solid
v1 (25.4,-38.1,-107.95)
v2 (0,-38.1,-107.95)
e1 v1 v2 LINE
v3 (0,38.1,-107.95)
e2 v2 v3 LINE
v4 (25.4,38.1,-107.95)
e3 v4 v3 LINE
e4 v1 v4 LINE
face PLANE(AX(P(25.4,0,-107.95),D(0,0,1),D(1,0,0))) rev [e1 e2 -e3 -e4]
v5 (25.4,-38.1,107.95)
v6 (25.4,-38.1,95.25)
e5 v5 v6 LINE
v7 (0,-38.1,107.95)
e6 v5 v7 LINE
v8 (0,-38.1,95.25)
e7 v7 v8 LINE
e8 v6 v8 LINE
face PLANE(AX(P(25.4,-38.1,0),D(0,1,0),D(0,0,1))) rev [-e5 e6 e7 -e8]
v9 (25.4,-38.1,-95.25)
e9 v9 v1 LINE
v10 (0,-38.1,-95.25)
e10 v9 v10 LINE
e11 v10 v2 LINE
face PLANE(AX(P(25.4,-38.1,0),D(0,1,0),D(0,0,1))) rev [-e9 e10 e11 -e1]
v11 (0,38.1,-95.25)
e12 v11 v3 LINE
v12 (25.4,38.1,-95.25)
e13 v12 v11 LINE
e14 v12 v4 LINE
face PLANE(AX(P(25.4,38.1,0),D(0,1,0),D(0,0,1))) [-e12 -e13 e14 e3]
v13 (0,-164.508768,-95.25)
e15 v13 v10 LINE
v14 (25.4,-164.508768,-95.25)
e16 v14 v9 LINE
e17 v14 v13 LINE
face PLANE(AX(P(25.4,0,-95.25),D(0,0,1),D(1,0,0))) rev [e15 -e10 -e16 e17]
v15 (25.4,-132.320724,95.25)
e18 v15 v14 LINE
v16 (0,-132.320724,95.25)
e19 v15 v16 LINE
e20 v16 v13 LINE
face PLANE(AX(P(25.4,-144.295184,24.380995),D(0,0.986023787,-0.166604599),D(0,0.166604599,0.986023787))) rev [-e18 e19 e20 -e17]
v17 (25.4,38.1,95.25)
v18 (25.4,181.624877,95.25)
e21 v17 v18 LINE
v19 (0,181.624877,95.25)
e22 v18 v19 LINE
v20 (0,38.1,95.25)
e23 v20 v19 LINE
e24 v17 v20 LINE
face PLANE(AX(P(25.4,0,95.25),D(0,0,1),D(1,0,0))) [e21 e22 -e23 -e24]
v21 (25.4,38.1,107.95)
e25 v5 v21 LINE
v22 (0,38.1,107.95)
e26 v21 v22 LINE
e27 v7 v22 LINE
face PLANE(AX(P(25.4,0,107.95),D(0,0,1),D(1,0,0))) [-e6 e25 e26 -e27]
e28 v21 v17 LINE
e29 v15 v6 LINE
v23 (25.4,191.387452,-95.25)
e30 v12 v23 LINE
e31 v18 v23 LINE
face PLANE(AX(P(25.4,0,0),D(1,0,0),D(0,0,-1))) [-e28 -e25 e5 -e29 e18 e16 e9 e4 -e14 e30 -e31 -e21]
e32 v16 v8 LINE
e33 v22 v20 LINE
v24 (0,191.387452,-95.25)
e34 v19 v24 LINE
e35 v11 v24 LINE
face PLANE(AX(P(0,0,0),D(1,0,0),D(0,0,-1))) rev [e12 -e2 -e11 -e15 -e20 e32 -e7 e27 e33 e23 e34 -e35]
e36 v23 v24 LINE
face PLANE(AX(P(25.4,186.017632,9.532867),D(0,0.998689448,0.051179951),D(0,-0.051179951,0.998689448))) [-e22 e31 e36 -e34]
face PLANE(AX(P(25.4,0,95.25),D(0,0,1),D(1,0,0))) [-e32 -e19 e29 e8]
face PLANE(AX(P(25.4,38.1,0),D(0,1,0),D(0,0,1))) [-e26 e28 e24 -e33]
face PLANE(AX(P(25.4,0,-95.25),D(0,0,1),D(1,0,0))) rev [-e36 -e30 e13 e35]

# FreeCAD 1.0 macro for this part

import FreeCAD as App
import Part
import Sketcher

V = App.Vector
Q = App.Units.Quantity


def add_polygon(sketch, points):
    """Adds a closed chain of lines whose ends are joined by coincident constraints."""
    first, n = sketch.GeometryCount, len(points)
    for a, b in zip(points, points[1:] + points[:1]):
        sketch.addGeometry(Part.LineSegment(App.Vector(*a, 0), App.Vector(*b, 0)), False)
    for i in range(n):
        sketch.addConstraint(Sketcher.Constraint("Coincident", first + i, 2, first + (i + 1) % n, 1))

doc = App.newDocument("Part")
body = doc.addObject("PartDesign::Body", "Body")

# Sketch on YZ plane
sketch1 = body.newObject("Sketcher::SketchObject", "Sketch")
sketch1.AttachmentSupport = (doc.getObject("YZ_Plane"), [""])
sketch1.MapMode = "FlatFace"
add_polygon(sketch1, [(191, -95), (182, 95), (38, 95), (38, 108), (-38, 108), (-38, 95), (-132, 95), (-165, -95), (-38, -95), (-38, -108), (38, -108), (38, -95)])  # lines 0-11
sketch1.addConstraint([
    Sketcher.Constraint("Horizontal", 1),
    Sketcher.Constraint("Vertical", 2),
    Sketcher.Constraint("Horizontal", 3),
    Sketcher.Constraint("Vertical", 4),
    Sketcher.Constraint("Horizontal", 5),
    Sketcher.Constraint("Horizontal", 7),
    Sketcher.Constraint("Vertical", 8),
    Sketcher.Constraint("Horizontal", 9),
    Sketcher.Constraint("Vertical", 10),
    Sketcher.Constraint("Horizontal", 11),
    Sketcher.Constraint("Symmetric", 1, 2, 7, 2, -1, 1),
    Sketcher.Constraint("Symmetric", 3, 2, 9, 2, -1, 1),
    Sketcher.Constraint("Symmetric", 1, 2, 4, 2, -2),
    Sketcher.Constraint("Horizontal", 7, 2, 10, 2),
    Sketcher.Constraint("DistanceX", 3, 2, 3, 1, Q("3 in")),
    Sketcher.Constraint("DistanceY", 2, 1, 2, 2, Q("0.5 in")),
    Sketcher.Constraint("DistanceY", 6, 2, 3, 2, Q("8 in")),
    Sketcher.Constraint("DistanceX", 11, 1, 11, 2, 153.287452),
    Sketcher.Constraint("DistanceX", 5, 2, 0, 2, 313.945601),
    Sketcher.Constraint("DistanceX", 1, 2, 1, 1, 143.524877),
    Sketcher.Constraint("DistanceX", 7, 1, 7, 2, 126.408768),
])
pad1 = body.newObject("PartDesign::Pad", "Pad")
pad1.Profile = sketch1
pad1.Length = Q("1 in")

doc.recompute()
